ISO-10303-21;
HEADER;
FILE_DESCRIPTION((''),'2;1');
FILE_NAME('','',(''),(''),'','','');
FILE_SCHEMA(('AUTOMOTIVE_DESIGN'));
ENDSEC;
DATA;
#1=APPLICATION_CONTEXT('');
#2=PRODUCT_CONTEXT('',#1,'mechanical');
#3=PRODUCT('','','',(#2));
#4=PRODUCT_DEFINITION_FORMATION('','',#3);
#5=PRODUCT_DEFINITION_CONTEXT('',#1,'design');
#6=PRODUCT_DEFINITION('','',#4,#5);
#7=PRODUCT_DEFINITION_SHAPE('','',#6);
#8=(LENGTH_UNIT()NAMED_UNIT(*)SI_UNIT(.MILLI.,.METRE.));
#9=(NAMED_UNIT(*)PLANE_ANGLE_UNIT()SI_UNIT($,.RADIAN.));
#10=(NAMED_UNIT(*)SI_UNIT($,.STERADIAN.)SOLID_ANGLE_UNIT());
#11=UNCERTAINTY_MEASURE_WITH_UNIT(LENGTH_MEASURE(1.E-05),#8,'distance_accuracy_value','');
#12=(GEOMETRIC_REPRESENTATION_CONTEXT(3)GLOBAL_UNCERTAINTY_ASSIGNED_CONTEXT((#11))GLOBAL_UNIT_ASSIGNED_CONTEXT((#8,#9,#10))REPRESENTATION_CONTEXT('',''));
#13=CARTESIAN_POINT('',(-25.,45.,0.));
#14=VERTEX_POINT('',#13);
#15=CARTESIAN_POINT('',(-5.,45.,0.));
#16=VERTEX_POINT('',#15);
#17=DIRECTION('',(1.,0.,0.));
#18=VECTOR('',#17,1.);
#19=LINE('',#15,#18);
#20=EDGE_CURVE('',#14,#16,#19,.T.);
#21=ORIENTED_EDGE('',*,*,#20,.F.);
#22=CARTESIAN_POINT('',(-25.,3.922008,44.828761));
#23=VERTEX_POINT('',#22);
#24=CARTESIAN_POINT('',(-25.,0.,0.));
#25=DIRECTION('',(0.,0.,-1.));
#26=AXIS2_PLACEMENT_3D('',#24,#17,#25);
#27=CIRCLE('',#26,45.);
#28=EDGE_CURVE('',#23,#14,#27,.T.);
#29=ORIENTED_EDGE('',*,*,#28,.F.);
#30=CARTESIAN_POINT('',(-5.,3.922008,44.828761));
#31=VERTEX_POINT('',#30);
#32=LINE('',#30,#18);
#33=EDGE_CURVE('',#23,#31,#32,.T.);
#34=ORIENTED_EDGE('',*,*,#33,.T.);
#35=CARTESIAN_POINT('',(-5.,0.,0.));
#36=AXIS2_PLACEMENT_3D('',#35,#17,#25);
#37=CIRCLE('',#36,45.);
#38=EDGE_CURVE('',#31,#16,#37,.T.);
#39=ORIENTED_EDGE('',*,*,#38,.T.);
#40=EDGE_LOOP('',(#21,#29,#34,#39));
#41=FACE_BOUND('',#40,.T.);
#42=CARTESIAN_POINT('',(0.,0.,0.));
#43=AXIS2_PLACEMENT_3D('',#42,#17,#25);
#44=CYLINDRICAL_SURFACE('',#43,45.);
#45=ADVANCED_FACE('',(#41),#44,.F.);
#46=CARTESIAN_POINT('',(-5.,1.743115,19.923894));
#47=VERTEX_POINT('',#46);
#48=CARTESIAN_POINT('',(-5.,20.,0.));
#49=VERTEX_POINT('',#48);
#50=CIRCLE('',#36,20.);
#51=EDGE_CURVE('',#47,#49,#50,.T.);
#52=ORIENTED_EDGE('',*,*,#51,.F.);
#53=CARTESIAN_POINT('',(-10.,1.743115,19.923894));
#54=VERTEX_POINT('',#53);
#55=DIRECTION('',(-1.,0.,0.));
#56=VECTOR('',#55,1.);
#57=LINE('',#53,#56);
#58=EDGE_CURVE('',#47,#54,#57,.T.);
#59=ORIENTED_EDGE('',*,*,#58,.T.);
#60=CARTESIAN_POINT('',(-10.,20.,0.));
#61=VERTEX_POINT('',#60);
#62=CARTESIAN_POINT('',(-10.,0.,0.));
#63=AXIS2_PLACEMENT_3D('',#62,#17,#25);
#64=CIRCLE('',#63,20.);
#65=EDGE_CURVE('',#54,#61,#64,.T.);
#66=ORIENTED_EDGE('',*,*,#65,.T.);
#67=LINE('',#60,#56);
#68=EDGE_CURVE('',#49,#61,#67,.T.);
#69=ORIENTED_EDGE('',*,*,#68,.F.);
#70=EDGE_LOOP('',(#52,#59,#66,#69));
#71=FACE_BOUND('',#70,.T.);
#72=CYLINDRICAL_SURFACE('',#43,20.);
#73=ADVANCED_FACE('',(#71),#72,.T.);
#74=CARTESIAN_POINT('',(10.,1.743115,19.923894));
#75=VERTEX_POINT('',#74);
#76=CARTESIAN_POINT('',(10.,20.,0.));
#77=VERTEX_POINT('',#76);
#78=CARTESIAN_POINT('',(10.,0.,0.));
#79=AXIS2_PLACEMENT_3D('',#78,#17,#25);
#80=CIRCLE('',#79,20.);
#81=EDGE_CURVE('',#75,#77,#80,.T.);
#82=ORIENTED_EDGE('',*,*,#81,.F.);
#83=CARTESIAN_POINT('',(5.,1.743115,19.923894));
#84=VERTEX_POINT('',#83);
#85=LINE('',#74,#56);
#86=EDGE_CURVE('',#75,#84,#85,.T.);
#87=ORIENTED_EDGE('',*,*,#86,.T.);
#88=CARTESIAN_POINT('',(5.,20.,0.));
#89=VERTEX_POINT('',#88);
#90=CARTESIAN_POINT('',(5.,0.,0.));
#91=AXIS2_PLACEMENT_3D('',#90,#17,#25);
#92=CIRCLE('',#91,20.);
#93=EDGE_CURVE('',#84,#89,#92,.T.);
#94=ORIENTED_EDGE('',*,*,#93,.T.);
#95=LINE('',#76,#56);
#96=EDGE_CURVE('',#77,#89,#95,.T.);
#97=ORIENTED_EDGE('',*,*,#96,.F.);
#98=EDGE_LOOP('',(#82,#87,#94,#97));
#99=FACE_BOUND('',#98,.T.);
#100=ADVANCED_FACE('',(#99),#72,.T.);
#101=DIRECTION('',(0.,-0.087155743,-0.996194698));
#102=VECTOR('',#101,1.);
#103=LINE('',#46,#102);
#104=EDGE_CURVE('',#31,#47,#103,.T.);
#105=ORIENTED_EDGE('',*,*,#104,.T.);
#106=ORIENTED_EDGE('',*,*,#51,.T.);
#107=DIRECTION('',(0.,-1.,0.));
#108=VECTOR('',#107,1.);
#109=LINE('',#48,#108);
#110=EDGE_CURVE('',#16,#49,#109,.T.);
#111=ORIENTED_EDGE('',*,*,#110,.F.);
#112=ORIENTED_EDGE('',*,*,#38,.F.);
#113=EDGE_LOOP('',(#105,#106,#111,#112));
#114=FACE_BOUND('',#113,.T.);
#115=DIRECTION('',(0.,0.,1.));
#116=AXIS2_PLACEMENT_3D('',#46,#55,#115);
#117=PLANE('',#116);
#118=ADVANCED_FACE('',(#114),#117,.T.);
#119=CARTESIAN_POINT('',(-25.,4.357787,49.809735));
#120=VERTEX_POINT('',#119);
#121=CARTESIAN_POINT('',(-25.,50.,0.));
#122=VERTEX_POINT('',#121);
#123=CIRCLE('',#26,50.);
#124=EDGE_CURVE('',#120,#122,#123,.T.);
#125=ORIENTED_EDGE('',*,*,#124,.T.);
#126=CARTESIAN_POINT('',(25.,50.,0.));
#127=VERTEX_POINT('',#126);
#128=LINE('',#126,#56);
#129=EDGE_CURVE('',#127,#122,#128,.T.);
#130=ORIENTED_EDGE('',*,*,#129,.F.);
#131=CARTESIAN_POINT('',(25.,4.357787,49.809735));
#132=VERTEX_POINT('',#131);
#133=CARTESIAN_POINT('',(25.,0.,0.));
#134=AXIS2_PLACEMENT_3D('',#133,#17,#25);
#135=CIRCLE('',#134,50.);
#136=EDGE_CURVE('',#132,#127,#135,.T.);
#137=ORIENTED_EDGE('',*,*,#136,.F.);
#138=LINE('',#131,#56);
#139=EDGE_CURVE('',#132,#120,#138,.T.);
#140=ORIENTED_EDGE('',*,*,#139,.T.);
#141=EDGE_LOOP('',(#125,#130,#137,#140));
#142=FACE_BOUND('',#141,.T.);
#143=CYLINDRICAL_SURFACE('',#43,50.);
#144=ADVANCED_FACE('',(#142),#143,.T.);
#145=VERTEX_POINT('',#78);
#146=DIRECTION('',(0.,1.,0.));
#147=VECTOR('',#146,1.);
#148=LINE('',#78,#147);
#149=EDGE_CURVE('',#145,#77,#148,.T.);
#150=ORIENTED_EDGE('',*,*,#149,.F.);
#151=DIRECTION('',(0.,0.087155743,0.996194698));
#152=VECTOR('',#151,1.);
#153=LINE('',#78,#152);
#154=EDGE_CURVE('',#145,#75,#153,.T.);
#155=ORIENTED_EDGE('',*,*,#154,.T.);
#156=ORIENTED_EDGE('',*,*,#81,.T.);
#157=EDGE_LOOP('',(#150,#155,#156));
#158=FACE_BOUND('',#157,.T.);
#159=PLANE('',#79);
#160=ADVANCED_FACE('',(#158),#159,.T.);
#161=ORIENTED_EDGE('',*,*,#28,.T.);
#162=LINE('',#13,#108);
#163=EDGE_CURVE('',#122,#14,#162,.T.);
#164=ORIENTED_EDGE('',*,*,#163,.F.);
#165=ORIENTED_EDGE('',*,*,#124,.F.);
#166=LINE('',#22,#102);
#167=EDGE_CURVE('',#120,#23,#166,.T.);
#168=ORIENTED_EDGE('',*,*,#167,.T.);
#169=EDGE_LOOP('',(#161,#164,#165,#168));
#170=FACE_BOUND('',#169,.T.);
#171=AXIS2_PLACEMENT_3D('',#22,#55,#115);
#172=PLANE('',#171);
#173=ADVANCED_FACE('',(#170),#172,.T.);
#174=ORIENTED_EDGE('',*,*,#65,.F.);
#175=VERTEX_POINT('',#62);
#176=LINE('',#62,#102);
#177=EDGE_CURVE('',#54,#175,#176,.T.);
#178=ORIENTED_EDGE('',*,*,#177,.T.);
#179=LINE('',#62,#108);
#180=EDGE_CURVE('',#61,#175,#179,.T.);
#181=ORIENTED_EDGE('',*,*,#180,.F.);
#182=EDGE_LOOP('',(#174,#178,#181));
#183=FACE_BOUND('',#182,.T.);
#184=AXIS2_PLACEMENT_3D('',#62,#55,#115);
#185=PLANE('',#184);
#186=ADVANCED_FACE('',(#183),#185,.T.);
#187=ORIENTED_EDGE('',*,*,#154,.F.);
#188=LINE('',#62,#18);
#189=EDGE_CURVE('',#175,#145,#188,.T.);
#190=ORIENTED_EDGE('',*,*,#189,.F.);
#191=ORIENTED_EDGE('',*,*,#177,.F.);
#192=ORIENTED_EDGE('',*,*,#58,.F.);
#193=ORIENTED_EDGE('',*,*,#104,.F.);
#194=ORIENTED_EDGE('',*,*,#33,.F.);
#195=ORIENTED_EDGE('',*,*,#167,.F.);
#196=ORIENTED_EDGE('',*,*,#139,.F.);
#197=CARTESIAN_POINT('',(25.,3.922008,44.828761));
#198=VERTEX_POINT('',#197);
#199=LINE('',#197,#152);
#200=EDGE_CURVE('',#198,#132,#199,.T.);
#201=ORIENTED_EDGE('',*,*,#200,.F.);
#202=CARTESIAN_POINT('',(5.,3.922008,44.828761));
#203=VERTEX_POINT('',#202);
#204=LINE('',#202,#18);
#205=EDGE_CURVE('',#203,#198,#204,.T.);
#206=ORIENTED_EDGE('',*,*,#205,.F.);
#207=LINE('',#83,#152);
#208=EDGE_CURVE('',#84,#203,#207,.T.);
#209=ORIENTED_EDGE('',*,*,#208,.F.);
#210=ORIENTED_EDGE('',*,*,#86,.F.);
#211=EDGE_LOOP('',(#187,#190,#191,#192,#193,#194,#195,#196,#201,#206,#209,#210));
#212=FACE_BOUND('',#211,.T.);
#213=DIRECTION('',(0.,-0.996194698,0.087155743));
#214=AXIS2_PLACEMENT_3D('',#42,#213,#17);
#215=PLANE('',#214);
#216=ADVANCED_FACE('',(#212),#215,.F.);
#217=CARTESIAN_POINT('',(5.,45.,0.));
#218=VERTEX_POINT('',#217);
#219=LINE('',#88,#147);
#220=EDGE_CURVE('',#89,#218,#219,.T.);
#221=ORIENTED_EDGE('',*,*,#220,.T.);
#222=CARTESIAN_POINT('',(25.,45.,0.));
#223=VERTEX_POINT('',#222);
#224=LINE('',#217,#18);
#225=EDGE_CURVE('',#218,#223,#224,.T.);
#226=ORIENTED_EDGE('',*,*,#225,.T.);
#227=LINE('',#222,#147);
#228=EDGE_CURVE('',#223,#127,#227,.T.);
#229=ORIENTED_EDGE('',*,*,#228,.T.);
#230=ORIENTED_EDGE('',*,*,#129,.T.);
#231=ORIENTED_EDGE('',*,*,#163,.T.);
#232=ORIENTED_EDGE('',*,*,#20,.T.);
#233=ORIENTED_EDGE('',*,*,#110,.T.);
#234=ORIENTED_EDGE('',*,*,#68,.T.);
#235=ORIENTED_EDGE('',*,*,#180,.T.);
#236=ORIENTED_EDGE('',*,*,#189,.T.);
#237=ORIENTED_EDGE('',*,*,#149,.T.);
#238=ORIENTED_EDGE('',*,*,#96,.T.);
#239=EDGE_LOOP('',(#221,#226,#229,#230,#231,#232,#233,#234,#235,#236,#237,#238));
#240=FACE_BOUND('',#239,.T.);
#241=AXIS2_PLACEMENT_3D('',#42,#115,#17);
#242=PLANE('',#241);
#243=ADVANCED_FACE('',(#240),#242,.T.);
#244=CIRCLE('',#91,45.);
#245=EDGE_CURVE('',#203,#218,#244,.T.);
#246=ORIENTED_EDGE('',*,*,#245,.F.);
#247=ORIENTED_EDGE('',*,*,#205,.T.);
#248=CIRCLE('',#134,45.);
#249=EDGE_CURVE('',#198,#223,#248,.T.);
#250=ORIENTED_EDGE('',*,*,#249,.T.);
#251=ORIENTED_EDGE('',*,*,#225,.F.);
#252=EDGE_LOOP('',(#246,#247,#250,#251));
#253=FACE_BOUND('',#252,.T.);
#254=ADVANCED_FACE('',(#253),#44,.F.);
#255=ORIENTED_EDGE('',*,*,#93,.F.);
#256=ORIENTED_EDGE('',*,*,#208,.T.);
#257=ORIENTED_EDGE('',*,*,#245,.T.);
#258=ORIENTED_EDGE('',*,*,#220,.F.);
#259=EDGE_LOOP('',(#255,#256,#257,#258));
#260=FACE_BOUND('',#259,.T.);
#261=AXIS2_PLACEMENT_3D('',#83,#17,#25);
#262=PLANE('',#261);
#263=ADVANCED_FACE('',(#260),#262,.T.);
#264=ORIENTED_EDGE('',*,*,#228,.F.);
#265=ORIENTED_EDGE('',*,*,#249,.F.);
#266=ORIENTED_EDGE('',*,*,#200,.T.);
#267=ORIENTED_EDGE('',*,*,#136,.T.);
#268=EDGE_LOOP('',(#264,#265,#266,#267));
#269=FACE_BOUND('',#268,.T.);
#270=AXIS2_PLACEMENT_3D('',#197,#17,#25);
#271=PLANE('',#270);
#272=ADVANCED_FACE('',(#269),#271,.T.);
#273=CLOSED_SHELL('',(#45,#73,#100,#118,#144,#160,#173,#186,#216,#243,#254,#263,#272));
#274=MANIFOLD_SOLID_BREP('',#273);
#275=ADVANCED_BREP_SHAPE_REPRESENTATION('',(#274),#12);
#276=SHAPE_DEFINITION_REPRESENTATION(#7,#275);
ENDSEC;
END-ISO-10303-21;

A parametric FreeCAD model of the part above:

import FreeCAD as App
import Part
import Sketcher

V = App.Vector


def add_polygon(sketch, points):
    """Adds a closed chain of lines whose ends are joined by coincident constraints."""
    first, n = sketch.GeometryCount, len(points)
    for a, b in zip(points, points[1:] + points[:1]):
        sketch.addGeometry(Part.LineSegment(App.Vector(*a, 0), App.Vector(*b, 0)), False)
    for i in range(n):
        sketch.addConstraint(Sketcher.Constraint("Coincident", first + i, 2, first + (i + 1) % n, 1))

doc = App.newDocument("Part")
body = doc.addObject("PartDesign::Body", "Body")

# Sketch on XY plane
sketch1 = body.newObject("Sketcher::SketchObject", "Sketch")
sketch1.AttachmentSupport = (doc.getObject("XY_Plane"), [""])
sketch1.MapMode = "FlatFace"
add_polygon(sketch1, [(-10, 0), (10, 0), (10, 20), (5, 20), (5, 45), (25, 45), (25, 50), (-25, 50), (-25, 45), (-5, 45), (-5, 20), (-10, 20)])  # lines 0-11
sketch1.addConstraint(Sketcher.Constraint("Horizontal", 0))
sketch1.addConstraint(Sketcher.Constraint("Vertical", 1))
sketch1.addConstraint(Sketcher.Constraint("Horizontal", 2))
sketch1.addConstraint(Sketcher.Constraint("Vertical", 3))
sketch1.addConstraint(Sketcher.Constraint("Horizontal", 4))
sketch1.addConstraint(Sketcher.Constraint("Vertical", 5))
sketch1.addConstraint(Sketcher.Constraint("Horizontal", 6))
sketch1.addConstraint(Sketcher.Constraint("Vertical", 7))
sketch1.addConstraint(Sketcher.Constraint("Horizontal", 8))
sketch1.addConstraint(Sketcher.Constraint("Vertical", 9))
sketch1.addConstraint(Sketcher.Constraint("Horizontal", 10))
sketch1.addConstraint(Sketcher.Constraint("Vertical", 11))
sketch1.addConstraint(Sketcher.Constraint("Symmetric", 0, 2, 11, 2, -1, 1))
sketch1.addConstraint(Sketcher.Constraint("Symmetric", 4, 2, 7, 2, -2))
sketch1.addConstraint(Sketcher.Constraint("Symmetric", 2, 2, 9, 2, -2))
sketch1.addConstraint(Sketcher.Constraint("Equal", 0, 4))
sketch1.addConstraint(Sketcher.Constraint("Equal", 8, 1))
sketch1.addConstraint(Sketcher.Constraint("Equal", 10, 5))
sketch1.addConstraint(Sketcher.Constraint("DistanceX", 0, 1, 0, 2, 20.0))
sketch1.addConstraint(Sketcher.Constraint("DistanceX", 2, 2, 2, 1, 5.0))
sketch1.addConstraint(Sketcher.Constraint("DistanceY", 3, 1, 3, 2, 25.0))
revolution = body.newObject("PartDesign::Revolution", "Revolution")
revolution.Profile = sketch1
revolution.ReferenceAxis = (sketch1, ["H_Axis"])
revolution.Angle = 275
revolution.Reversed = True

doc.recompute()
